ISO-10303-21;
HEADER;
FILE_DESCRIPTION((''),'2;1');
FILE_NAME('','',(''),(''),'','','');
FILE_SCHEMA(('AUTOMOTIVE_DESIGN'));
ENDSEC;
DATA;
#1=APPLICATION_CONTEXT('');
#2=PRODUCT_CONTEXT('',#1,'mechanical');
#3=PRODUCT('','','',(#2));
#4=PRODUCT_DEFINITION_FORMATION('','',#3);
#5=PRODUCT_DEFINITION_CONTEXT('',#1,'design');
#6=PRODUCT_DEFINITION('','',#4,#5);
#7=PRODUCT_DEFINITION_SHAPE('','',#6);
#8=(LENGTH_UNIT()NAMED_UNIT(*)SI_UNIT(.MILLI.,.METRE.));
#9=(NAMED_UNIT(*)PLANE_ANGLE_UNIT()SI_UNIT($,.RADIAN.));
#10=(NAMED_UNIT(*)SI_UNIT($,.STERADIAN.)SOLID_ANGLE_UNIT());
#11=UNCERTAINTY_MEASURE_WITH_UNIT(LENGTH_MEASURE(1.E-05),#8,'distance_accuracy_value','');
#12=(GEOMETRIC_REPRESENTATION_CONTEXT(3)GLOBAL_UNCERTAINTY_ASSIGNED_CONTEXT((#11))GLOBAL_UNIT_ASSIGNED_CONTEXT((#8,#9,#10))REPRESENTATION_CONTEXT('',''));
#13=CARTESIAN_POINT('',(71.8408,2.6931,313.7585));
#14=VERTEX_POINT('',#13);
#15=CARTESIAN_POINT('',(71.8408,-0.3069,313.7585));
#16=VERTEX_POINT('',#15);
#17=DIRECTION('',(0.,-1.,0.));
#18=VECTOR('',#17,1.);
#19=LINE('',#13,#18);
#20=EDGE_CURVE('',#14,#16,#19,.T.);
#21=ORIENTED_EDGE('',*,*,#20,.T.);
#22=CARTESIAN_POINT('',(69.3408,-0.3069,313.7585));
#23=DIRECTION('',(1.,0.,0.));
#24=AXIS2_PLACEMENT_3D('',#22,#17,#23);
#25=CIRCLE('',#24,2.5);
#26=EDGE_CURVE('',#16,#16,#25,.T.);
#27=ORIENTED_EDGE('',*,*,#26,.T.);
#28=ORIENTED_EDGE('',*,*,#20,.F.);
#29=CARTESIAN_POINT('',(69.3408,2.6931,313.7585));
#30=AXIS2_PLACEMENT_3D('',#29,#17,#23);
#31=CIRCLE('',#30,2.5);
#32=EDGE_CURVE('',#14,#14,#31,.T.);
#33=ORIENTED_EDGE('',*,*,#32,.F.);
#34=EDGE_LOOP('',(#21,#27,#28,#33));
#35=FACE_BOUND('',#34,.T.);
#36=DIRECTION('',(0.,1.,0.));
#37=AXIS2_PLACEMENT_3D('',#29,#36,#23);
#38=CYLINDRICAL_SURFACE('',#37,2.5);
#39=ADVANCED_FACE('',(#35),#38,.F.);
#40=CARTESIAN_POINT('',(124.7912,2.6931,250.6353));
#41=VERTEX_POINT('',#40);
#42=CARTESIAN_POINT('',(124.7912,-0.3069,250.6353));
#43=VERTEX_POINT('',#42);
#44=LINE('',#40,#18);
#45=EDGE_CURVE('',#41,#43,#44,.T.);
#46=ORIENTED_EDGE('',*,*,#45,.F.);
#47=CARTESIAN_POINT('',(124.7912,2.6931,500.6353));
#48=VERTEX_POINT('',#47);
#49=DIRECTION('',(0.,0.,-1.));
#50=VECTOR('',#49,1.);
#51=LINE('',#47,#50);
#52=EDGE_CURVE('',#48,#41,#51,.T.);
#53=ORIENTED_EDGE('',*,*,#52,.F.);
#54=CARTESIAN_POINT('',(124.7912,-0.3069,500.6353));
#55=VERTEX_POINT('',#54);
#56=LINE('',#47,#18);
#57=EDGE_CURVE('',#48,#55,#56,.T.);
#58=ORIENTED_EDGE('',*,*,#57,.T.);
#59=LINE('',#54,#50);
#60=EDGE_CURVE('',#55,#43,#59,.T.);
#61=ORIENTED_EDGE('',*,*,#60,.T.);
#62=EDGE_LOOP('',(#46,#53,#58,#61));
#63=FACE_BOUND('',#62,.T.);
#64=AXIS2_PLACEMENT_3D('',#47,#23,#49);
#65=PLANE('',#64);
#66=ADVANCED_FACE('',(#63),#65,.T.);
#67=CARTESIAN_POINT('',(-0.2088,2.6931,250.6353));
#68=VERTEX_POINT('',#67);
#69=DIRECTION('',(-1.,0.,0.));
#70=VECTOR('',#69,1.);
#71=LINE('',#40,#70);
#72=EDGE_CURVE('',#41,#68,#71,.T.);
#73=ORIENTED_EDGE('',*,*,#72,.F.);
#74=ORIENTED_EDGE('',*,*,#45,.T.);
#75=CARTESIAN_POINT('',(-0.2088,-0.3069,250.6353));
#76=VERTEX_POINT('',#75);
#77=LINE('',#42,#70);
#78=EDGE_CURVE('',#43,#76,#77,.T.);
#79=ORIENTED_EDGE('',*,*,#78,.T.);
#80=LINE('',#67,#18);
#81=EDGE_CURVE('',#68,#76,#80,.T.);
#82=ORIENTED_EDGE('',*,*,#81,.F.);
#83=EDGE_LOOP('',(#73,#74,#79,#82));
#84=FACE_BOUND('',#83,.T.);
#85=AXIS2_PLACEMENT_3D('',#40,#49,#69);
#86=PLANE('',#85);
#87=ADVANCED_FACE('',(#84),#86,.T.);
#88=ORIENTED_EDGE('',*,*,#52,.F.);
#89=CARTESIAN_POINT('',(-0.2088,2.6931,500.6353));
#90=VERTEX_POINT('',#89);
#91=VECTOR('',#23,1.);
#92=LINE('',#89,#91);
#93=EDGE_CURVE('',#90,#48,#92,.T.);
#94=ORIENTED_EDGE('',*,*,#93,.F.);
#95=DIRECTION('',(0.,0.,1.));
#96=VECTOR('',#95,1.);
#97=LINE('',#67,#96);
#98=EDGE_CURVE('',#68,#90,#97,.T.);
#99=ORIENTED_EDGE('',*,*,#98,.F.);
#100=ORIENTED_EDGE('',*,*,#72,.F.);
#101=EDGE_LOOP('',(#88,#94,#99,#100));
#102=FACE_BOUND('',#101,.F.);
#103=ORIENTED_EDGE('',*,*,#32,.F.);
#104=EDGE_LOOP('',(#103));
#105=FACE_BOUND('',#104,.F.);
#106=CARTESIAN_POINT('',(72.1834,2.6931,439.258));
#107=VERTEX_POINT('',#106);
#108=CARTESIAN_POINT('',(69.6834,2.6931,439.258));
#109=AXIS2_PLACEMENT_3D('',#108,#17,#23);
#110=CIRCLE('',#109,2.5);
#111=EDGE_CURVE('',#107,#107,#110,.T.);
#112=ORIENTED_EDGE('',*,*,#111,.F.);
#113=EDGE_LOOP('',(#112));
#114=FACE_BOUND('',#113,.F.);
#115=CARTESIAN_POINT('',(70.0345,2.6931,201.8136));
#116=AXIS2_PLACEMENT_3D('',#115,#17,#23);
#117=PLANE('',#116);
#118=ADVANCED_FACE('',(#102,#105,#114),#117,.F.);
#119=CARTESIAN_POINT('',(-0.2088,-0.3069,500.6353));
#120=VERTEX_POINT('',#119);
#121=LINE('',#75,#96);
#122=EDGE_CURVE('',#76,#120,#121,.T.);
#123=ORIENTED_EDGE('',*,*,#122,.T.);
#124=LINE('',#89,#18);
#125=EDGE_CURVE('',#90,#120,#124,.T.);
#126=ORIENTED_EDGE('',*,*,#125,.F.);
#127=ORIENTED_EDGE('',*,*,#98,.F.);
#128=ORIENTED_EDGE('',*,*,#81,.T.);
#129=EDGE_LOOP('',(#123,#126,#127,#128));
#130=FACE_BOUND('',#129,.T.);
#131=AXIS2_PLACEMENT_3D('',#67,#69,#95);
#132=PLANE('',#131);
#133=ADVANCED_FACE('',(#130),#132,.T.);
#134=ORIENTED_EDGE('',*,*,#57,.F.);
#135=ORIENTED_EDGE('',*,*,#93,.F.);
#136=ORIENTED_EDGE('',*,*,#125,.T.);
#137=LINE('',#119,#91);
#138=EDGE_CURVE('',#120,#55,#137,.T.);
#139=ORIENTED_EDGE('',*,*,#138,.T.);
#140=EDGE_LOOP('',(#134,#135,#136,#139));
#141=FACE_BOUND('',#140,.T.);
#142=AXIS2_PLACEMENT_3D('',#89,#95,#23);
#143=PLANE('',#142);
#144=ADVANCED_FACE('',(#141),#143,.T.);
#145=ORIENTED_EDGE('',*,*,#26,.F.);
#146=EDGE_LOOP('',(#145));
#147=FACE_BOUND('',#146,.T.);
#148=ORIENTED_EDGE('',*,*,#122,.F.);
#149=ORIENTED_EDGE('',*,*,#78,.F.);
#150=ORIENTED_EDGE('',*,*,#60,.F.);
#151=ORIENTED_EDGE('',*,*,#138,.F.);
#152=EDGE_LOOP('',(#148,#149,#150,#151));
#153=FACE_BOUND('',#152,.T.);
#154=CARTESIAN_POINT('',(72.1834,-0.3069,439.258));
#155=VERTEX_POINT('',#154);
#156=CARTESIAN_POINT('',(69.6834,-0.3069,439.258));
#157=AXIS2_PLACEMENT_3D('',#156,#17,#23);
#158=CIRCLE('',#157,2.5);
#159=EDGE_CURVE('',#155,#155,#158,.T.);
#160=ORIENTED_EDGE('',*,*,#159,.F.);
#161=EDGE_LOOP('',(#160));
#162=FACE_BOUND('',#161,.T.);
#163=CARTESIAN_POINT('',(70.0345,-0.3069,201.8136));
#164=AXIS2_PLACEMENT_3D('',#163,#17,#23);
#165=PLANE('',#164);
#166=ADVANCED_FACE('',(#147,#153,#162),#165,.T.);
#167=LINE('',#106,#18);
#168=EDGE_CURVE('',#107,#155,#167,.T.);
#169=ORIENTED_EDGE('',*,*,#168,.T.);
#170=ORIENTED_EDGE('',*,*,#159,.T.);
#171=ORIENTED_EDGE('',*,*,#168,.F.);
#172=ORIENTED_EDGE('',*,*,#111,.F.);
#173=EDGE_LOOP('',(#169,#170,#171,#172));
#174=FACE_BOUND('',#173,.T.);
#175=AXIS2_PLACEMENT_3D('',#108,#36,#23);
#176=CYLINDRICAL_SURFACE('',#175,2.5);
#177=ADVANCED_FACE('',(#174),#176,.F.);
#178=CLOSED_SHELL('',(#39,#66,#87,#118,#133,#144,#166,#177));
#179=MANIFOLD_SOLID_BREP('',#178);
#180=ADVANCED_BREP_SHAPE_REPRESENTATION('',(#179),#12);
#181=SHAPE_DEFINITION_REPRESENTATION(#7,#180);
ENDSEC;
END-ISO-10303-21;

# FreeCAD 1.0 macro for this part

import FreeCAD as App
import Part
import Sketcher
Q = App.Units.Quantity

doc = App.newDocument("Part")
body = doc.addObject("PartDesign::Body", "Body")

# Sketch on XZ plane
sketch1 = body.newObject("Sketcher::SketchObject", "Sketch")
sketch1.AttachmentSupport = (doc.getObject("XZ_Plane"), [""])
sketch1.MapMode = "FlatFace"
sketch1.AttachmentOffset = App.Placement(App.Vector(0, 0, -2.6931), App.Rotation())
sketch1.addGeometry(Part.LineSegment(App.Vector(124.8, 500.6, 0), App.Vector(-0.2, 500.6, 0)), False)
sketch1.addGeometry(Part.LineSegment(App.Vector(-0.2, 500.6, 0), App.Vector(-0.2, 250.6, 0)), False)
sketch1.addGeometry(Part.LineSegment(App.Vector(-0.2, 250.6, 0), App.Vector(124.8, 250.6, 0)), False)
sketch1.addGeometry(Part.LineSegment(App.Vector(124.8, 250.6, 0), App.Vector(124.8, 500.6, 0)), False)
sketch1.addGeometry(Part.Circle(App.Vector(69.3, 313.8, 0), App.Vector(0, 0, 1), 2.5), False)
sketch1.addGeometry(Part.Circle(App.Vector(69.7, 439.3, 0), App.Vector(0, 0, 1), 2.5), False)
sketch1.addConstraint(Sketcher.Constraint("Coincident", 0, 2, 1, 1))
sketch1.addConstraint(Sketcher.Constraint("Coincident", 1, 2, 2, 1))
sketch1.addConstraint(Sketcher.Constraint("Coincident", 2, 2, 3, 1))
sketch1.addConstraint(Sketcher.Constraint("Coincident", 3, 2, 0, 1))
sketch1.addConstraint(Sketcher.Constraint("Horizontal", 0))
sketch1.addConstraint(Sketcher.Constraint("Vertical", 1))
sketch1.addConstraint(Sketcher.Constraint("Horizontal", 2))
sketch1.addConstraint(Sketcher.Constraint("Vertical", 3))
sketch1.addConstraint(Sketcher.Constraint("Equal", 4, 5))
sketch1.addConstraint(Sketcher.Constraint("Diameter", 4, Q("5 mm")))
sketch1.addConstraint(Sketcher.Constraint("DistanceX", 0, 2, 0, 1, Q("125 mm")))
sketch1.addConstraint(Sketcher.Constraint("DistanceY", 1, 2, 1, 1, Q("250 mm")))
sketch1.addConstraint(Sketcher.Constraint("DistanceY", 4, 3, 5, 3, Q("125.4995 mm")))
sketch1.addConstraint(Sketcher.Constraint("DistanceY", -1, 1, 5, 3, Q("439.258 mm")))
sketch1.addConstraint(Sketcher.Constraint("DistanceX", -1, 1, 4, 3, Q("69.3408 mm")))
sketch1.addConstraint(Sketcher.Constraint("DistanceX", -1, 1, 5, 3, Q("69.6834 mm")))
sketch1.addConstraint(Sketcher.Constraint("DistanceX", 0, 2, -1, 1, Q("0.2088 mm")))
sketch1.addConstraint(Sketcher.Constraint("DistanceY", -1, 1, 0, 2, Q("500.6353 mm")))
pad1 = body.newObject("PartDesign::Pad", "Pad")
pad1.Profile = sketch1
pad1.Length = 3

doc.recompute()
